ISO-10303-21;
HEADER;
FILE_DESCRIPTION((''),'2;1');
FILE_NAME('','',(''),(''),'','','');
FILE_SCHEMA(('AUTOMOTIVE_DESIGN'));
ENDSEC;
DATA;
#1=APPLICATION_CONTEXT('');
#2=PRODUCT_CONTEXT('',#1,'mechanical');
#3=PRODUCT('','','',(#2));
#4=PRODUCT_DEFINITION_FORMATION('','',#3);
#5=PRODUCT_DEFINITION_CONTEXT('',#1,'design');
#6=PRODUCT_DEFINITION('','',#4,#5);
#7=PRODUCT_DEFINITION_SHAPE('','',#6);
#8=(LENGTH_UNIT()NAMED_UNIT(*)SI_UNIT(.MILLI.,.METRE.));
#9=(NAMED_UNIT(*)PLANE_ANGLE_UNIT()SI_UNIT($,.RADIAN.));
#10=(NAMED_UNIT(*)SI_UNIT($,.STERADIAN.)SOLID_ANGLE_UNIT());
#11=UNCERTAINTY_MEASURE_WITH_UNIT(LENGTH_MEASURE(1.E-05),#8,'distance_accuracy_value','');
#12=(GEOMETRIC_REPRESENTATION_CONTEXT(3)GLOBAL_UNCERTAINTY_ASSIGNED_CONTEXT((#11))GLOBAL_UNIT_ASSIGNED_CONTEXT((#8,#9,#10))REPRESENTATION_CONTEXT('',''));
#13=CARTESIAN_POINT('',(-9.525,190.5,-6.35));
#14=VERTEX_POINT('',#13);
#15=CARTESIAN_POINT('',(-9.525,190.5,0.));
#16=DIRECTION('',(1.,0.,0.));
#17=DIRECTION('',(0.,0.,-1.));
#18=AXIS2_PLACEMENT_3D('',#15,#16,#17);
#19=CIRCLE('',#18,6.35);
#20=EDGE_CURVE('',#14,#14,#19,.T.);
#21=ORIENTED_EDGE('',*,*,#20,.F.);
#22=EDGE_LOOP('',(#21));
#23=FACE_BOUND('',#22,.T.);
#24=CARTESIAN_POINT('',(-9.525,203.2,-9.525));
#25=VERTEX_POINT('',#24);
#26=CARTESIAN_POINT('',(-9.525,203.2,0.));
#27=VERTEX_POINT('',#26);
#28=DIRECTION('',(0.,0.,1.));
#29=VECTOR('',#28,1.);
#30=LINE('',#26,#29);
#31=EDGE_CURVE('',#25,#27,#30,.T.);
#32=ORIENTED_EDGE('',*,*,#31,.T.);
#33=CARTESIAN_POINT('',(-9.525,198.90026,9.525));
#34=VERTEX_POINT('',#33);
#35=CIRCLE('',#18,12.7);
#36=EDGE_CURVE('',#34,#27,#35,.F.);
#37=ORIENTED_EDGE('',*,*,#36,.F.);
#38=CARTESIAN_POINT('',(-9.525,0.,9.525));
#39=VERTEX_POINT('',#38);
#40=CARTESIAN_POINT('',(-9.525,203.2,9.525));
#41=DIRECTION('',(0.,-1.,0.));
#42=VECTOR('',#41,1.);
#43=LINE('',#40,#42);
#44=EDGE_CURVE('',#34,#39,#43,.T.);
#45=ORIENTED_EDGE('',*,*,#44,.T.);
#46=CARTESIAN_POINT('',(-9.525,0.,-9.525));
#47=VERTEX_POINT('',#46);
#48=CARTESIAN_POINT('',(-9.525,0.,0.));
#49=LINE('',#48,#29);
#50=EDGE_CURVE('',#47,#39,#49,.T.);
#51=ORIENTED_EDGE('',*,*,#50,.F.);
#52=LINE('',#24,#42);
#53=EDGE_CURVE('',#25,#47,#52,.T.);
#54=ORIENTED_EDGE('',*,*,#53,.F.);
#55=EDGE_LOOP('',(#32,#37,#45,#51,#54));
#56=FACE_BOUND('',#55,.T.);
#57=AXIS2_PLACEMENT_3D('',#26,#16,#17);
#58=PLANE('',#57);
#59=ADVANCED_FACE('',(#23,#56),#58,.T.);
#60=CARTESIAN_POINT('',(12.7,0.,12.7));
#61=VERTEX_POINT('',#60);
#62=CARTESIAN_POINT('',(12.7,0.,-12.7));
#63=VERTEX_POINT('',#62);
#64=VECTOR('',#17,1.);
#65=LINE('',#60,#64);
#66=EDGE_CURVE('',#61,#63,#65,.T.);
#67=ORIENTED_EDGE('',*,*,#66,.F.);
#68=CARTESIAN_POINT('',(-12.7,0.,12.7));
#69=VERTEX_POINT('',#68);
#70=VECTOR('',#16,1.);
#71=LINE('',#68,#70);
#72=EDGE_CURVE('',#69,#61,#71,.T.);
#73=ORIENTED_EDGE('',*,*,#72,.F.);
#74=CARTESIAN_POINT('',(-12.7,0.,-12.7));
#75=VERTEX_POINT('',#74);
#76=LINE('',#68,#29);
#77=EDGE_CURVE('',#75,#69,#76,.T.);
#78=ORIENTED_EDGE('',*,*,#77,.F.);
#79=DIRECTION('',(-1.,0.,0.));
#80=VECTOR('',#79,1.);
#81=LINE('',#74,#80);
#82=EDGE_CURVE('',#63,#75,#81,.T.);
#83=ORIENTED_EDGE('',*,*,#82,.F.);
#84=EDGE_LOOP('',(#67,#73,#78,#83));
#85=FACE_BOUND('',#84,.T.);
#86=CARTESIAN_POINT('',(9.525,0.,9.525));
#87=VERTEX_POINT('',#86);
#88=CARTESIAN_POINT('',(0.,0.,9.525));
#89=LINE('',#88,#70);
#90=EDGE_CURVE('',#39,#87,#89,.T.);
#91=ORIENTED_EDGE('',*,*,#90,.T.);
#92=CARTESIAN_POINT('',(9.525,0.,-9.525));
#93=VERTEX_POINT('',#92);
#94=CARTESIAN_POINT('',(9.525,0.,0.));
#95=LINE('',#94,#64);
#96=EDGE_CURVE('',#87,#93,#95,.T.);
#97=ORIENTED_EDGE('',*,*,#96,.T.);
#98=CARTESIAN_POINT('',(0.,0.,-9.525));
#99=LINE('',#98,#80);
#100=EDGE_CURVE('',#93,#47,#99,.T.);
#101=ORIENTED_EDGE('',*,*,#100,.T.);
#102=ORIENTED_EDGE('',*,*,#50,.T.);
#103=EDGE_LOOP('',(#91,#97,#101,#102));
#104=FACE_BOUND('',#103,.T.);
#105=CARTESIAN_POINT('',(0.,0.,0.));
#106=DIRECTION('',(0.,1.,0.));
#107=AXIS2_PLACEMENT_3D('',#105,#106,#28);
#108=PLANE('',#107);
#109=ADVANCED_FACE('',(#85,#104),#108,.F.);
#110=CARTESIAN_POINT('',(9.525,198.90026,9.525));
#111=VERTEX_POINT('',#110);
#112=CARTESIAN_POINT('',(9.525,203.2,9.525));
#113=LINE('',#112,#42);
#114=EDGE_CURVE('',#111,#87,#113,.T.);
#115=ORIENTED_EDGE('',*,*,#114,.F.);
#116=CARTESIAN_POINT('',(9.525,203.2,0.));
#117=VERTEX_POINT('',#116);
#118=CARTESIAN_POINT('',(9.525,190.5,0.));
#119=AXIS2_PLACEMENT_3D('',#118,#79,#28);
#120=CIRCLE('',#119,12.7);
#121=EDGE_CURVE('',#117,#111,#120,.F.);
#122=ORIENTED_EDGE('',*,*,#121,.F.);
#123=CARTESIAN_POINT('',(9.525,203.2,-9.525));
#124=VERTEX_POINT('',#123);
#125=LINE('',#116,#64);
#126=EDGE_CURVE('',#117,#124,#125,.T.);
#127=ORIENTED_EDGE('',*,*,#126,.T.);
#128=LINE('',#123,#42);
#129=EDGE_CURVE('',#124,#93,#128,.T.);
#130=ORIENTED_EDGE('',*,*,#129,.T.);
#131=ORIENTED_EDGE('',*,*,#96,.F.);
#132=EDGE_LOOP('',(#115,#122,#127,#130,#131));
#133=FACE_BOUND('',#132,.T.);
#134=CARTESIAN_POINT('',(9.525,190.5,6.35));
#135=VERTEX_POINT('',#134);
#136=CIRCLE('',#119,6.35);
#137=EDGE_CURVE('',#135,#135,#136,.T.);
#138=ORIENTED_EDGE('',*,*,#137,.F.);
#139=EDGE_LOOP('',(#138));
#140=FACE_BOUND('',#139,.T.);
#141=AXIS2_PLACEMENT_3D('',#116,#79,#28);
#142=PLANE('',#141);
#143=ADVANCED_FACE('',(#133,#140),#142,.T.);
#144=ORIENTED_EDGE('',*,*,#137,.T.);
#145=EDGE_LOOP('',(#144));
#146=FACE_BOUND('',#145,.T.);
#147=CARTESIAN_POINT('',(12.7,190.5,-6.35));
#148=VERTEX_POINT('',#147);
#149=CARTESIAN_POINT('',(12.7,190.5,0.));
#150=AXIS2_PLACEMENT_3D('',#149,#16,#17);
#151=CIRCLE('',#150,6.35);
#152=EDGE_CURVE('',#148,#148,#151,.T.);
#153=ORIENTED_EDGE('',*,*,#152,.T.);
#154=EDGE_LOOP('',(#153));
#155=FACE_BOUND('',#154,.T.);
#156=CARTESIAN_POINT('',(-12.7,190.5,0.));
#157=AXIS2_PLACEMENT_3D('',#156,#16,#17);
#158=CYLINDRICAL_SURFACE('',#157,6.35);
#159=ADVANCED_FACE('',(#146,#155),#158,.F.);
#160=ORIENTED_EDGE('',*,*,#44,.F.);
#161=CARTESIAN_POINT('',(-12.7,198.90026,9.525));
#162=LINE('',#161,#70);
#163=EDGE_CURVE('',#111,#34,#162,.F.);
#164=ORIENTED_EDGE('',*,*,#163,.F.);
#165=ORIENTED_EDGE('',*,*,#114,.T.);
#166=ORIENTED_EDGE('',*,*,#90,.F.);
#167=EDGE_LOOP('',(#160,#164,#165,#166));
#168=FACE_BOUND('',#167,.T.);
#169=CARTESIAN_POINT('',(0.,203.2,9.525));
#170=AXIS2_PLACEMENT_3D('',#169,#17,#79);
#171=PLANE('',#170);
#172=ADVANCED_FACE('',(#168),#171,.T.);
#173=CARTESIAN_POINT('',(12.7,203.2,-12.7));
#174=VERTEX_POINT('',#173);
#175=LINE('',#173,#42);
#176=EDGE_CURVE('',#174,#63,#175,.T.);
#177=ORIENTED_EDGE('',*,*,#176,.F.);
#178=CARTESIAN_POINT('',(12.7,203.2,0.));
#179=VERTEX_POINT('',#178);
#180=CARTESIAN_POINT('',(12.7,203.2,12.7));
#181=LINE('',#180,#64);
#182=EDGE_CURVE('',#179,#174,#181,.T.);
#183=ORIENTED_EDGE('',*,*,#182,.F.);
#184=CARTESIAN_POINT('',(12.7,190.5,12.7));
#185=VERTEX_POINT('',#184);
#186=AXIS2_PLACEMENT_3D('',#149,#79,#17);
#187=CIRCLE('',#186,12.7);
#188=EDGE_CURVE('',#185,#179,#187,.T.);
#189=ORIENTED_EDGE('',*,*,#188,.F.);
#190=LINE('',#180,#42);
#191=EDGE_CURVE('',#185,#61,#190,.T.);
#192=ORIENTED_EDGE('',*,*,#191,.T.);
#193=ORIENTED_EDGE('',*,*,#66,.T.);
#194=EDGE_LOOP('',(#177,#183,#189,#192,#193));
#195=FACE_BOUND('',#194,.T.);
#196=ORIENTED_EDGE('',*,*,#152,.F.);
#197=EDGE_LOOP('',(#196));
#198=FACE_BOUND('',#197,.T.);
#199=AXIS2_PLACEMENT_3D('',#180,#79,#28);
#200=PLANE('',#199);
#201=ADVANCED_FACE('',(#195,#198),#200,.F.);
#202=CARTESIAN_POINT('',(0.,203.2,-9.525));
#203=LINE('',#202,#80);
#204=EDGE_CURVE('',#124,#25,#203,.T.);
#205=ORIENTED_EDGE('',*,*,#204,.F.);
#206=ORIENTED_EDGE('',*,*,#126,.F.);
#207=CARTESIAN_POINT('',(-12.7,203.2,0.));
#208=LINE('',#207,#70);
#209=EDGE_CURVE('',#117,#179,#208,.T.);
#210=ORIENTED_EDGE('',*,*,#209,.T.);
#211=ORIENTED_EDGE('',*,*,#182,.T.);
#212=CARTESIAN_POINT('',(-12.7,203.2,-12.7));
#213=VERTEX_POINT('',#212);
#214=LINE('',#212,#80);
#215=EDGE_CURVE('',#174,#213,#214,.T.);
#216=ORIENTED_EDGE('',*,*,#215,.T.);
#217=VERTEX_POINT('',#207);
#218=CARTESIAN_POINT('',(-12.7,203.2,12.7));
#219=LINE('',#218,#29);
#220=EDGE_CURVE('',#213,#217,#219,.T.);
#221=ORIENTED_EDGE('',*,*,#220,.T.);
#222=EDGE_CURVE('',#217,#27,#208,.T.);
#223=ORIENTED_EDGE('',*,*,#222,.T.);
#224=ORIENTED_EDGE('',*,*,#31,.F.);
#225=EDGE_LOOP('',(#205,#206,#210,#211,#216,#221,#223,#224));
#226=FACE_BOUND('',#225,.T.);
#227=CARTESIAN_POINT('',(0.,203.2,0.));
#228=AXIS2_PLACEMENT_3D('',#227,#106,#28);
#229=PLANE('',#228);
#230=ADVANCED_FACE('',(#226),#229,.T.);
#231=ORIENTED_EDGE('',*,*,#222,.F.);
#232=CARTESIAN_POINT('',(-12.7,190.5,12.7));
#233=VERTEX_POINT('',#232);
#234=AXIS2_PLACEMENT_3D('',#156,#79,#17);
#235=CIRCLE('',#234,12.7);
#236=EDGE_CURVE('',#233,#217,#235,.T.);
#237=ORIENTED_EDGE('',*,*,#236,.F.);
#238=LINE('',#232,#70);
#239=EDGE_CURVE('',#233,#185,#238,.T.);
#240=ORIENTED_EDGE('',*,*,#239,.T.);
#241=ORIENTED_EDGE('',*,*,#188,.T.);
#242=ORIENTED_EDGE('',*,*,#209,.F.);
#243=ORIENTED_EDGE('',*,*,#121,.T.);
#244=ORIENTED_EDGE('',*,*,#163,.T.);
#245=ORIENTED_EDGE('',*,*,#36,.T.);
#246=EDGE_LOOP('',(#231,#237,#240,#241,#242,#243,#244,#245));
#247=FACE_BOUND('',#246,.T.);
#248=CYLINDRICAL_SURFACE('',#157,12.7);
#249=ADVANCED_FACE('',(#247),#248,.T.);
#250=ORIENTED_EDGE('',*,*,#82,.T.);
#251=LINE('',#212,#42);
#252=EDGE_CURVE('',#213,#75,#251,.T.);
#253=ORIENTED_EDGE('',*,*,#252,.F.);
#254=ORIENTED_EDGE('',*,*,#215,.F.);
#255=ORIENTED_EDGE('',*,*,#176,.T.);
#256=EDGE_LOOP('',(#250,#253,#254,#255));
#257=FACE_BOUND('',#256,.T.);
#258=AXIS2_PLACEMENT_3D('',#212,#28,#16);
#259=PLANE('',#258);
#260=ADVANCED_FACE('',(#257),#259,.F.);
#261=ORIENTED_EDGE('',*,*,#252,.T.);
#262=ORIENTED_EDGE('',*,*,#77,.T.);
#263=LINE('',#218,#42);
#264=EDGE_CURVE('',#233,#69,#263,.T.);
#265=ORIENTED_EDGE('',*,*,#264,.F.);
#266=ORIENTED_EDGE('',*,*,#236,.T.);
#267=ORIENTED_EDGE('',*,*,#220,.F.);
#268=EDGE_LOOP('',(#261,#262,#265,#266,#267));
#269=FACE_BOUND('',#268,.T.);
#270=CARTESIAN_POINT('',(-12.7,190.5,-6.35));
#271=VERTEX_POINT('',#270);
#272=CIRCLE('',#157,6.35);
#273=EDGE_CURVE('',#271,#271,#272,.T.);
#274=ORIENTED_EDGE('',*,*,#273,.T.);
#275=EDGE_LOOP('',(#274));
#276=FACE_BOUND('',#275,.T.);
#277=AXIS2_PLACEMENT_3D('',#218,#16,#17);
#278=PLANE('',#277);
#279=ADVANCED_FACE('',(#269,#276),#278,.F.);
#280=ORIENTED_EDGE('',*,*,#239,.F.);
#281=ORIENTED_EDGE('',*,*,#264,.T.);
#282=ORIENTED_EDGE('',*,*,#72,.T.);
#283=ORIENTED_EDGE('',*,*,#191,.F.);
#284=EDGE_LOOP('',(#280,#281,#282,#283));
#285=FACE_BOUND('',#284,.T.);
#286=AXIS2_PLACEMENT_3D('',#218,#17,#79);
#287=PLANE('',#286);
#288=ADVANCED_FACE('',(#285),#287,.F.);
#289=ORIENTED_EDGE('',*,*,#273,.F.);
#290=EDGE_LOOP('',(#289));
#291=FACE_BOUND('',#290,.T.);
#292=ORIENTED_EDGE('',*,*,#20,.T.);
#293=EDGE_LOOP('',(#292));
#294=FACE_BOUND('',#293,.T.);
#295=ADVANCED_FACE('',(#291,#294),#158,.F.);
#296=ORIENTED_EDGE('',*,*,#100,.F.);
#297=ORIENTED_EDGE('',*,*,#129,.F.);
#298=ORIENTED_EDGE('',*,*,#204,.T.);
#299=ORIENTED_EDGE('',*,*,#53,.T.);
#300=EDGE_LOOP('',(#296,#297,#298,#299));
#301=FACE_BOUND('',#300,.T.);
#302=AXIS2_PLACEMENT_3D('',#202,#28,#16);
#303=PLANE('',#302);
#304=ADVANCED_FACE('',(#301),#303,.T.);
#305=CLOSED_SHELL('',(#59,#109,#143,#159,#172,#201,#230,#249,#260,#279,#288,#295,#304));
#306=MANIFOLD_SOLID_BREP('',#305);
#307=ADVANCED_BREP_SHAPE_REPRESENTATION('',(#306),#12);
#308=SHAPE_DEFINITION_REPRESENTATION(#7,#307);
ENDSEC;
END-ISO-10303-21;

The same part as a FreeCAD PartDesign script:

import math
import FreeCAD as App
import Part
import Sketcher
Q = App.Units.Quantity


def add_polygon(sketch, points):
    """Adds a closed chain of lines whose ends are joined by coincident constraints."""
    first, n = sketch.GeometryCount, len(points)
    for a, b in zip(points, points[1:] + points[:1]):
        sketch.addGeometry(Part.LineSegment(App.Vector(*a, 0), App.Vector(*b, 0)), False)
    for i in range(n):
        sketch.addConstraint(Sketcher.Constraint("Coincident", first + i, 2, first + (i + 1) % n, 1))

doc = App.newDocument("Part")
body = doc.addObject("PartDesign::Body", "Body")

sketch1 = doc.addObject("Sketcher::SketchObject", "Sketch")
body.addObject(sketch1)
sketch1.AttachmentSupport = (doc.XZ_Plane, [""])
sketch1.MapMode = "FlatFace"
add_polygon(sketch1, [(-13, -13), (-13, 13), (13, 13), (13, -13)])
add_polygon(sketch1, [(10, 10), (-10, 10), (-10, -10), (10, -10)])
sketch1.addConstraint(Sketcher.Constraint("Vertical", 0))
sketch1.addConstraint(Sketcher.Constraint("Horizontal", 1))
sketch1.addConstraint(Sketcher.Constraint("Vertical", 2))
sketch1.addConstraint(Sketcher.Constraint("Horizontal", 3))
sketch1.addConstraint(Sketcher.Constraint("Horizontal", 4))
sketch1.addConstraint(Sketcher.Constraint("Vertical", 5))
sketch1.addConstraint(Sketcher.Constraint("Horizontal", 6))
sketch1.addConstraint(Sketcher.Constraint("Vertical", 7))
sketch1.addConstraint(Sketcher.Constraint("Symmetric", 0, 2, 2, 2, -1, 1))
sketch1.addConstraint(Sketcher.Constraint("Symmetric", 4, 2, 6, 2, -1, 1))
sketch1.addConstraint(Sketcher.Constraint("Equal", 3, 0))
sketch1.addConstraint(Sketcher.Constraint("Equal", 6, 5))
sketch1.addConstraint(Sketcher.Constraint("DistanceX", 1, 1, 1, 2, Q("1 in")))
sketch1.addConstraint(Sketcher.Constraint("DistanceX", 4, 2, 4, 1, Q("0.75 in")))
pad1 = doc.addObject("PartDesign::Pad", "Pad")
body.addObject(pad1)
pad1.Profile = sketch1
pad1.Length = Q("8 in")
pad1.Reversed = True

sketch2 = doc.addObject("Sketcher::SketchObject", "Sketch001")
body.addObject(sketch2)
sketch2.AttachmentSupport = (doc.YZ_Plane, [""])
sketch2.MapMode = "FlatFace"
sketch2.AttachmentOffset = App.Placement(App.Vector(0, 0, 0.5 * 25.4), App.Rotation())
sketch2.addGeometry(Part.Circle(App.Vector(190, 0, 0), App.Vector(0, 0, 1), 6), False)
sketch2.addConstraint(Sketcher.Constraint("PointOnObject", 0, 3, -1))
sketch2.addConstraint(Sketcher.Constraint("Diameter", 0, Q("0.5 in")))
sketch2.addConstraint(Sketcher.Constraint("DistanceX", -1, 1, 0, 3, Q("7.5 in")))
pocket1 = doc.addObject("PartDesign::Pocket", "Pocket")
body.addObject(pocket1)
pocket1.Profile = sketch2
pocket1.Type = "ThroughAll"

sketch3 = doc.addObject("Sketcher::SketchObject", "Sketch002")
body.addObject(sketch3)
sketch3.AttachmentSupport = (doc.YZ_Plane, [""])
sketch3.MapMode = "FlatFace"
sketch3.AttachmentOffset = App.Placement(App.Vector(0, 0, 0.5 * 25.4), App.Rotation())
sketch3.addGeometry(Part.LineSegment(App.Vector(203, 13, 0), App.Vector(190, 13, 0)), False)
sketch3.addGeometry(Part.ArcOfCircle(Part.Circle(App.Vector(190, 0, 0), App.Vector(0, 0, 1), 13), math.radians(0), math.radians(90)), False)
sketch3.addGeometry(Part.LineSegment(App.Vector(203, 0, 0), App.Vector(203, 13, 0)), False)
sketch3.addConstraint(Sketcher.Constraint("Tangent", 0, 2, 1, 2))
sketch3.addConstraint(Sketcher.Constraint("Tangent", 1, 1, 2, 1))
sketch3.addConstraint(Sketcher.Constraint("Coincident", 2, 2, 0, 1))
sketch3.addConstraint(Sketcher.Constraint("Horizontal", 0))
sketch3.addConstraint(Sketcher.Constraint("Vertical", 2))
sketch3.addConstraint(Sketcher.Constraint("PointOnObject", 1, 3, -1))
sketch3.addConstraint(Sketcher.Constraint("Radius", 1, Q("0.5 in")))
sketch3.addConstraint(Sketcher.Constraint("DistanceX", -1, 1, 1, 1, Q("8 in")))
pocket2 = doc.addObject("PartDesign::Pocket", "Pocket001")
body.addObject(pocket2)
pocket2.Profile = sketch3
pocket2.Type = "ThroughAll"

doc.recompute()
